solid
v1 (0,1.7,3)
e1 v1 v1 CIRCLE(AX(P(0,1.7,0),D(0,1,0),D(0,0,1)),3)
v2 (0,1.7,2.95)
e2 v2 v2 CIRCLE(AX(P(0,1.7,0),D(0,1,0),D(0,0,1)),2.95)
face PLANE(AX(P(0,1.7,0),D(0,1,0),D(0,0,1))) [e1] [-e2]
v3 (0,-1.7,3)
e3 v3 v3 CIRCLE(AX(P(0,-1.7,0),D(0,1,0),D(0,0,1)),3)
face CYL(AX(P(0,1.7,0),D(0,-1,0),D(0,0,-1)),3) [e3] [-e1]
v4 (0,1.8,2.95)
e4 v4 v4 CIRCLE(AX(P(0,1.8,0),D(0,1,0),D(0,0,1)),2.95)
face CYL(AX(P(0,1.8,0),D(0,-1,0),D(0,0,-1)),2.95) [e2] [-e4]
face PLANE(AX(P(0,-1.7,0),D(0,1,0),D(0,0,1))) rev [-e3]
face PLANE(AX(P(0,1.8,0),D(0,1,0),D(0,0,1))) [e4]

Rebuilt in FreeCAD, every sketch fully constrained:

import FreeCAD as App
import Part
import Sketcher
from FreeCAD import Vector
Q = App.Units.Quantity

doc = App.newDocument("Part")
params = doc.addObject("Spreadsheet::Sheet", "Params")
for row, (alias, value) in enumerate([
    ("sketch1_diameter", "6 mm"),
    ("pad1_length", "3.4 mm"),
    ("sketch2_diameter", "5.9 mm"),
    ("pad2_length", "0.1 mm"),
], start=1):
    params.set(f"A{row}", alias)
    params.set(f"B{row}", "=" + value)
    params.setAlias(f"B{row}", alias)

body = doc.addObject("PartDesign::Body", "Body")

# Sketch on XZ plane
sketch1 = body.newObject("Sketcher::SketchObject", "Sketch")
sketch1.AttachmentSupport = (doc.getObject("XZ_Plane"), [""])
sketch1.MapMode = "FlatFace"
sketch1.addGeometry(Part.Circle(Vector(0, 0, 0), Vector(0, 0, 1), 3), False)
sketch1.addConstraint([
    Sketcher.Constraint("Coincident", 0, 3, -1, 1),
    Sketcher.Constraint("Diameter", 0, Q("6 mm")),
])
sketch1.setExpression("Constraints[1]", "Params.sketch1_diameter")
pad1 = body.newObject("PartDesign::Pad", "Pad")
pad1.Profile = sketch1
pad1.setExpression("Length", "Params.pad1_length")
pad1.Midplane = True

# Sketch on XZ plane
sketch2 = body.newObject("Sketcher::SketchObject", "Sketch001")
sketch2.AttachmentSupport = (doc.getObject("XZ_Plane"), [""])
sketch2.MapMode = "FlatFace"
sketch2.AttachmentOffset = App.Placement(Vector(0, 0, -1.7), App.Rotation())
sketch2.addGeometry(Part.Circle(Vector(0, 0, 0), Vector(0, 0, 1), 2.95), False)
sketch2.addConstraint([
    Sketcher.Constraint("Coincident", 0, 3, -1, 1),
    Sketcher.Constraint("Diameter", 0, Q("5.9 mm")),
])
sketch2.setExpression("Constraints[1]", "Params.sketch2_diameter")
pad2 = body.newObject("PartDesign::Pad", "Pad001")
pad2.Profile = sketch2
pad2.setExpression("Length", "Params.pad2_length")
pad2.Reversed = True

doc.recompute()
